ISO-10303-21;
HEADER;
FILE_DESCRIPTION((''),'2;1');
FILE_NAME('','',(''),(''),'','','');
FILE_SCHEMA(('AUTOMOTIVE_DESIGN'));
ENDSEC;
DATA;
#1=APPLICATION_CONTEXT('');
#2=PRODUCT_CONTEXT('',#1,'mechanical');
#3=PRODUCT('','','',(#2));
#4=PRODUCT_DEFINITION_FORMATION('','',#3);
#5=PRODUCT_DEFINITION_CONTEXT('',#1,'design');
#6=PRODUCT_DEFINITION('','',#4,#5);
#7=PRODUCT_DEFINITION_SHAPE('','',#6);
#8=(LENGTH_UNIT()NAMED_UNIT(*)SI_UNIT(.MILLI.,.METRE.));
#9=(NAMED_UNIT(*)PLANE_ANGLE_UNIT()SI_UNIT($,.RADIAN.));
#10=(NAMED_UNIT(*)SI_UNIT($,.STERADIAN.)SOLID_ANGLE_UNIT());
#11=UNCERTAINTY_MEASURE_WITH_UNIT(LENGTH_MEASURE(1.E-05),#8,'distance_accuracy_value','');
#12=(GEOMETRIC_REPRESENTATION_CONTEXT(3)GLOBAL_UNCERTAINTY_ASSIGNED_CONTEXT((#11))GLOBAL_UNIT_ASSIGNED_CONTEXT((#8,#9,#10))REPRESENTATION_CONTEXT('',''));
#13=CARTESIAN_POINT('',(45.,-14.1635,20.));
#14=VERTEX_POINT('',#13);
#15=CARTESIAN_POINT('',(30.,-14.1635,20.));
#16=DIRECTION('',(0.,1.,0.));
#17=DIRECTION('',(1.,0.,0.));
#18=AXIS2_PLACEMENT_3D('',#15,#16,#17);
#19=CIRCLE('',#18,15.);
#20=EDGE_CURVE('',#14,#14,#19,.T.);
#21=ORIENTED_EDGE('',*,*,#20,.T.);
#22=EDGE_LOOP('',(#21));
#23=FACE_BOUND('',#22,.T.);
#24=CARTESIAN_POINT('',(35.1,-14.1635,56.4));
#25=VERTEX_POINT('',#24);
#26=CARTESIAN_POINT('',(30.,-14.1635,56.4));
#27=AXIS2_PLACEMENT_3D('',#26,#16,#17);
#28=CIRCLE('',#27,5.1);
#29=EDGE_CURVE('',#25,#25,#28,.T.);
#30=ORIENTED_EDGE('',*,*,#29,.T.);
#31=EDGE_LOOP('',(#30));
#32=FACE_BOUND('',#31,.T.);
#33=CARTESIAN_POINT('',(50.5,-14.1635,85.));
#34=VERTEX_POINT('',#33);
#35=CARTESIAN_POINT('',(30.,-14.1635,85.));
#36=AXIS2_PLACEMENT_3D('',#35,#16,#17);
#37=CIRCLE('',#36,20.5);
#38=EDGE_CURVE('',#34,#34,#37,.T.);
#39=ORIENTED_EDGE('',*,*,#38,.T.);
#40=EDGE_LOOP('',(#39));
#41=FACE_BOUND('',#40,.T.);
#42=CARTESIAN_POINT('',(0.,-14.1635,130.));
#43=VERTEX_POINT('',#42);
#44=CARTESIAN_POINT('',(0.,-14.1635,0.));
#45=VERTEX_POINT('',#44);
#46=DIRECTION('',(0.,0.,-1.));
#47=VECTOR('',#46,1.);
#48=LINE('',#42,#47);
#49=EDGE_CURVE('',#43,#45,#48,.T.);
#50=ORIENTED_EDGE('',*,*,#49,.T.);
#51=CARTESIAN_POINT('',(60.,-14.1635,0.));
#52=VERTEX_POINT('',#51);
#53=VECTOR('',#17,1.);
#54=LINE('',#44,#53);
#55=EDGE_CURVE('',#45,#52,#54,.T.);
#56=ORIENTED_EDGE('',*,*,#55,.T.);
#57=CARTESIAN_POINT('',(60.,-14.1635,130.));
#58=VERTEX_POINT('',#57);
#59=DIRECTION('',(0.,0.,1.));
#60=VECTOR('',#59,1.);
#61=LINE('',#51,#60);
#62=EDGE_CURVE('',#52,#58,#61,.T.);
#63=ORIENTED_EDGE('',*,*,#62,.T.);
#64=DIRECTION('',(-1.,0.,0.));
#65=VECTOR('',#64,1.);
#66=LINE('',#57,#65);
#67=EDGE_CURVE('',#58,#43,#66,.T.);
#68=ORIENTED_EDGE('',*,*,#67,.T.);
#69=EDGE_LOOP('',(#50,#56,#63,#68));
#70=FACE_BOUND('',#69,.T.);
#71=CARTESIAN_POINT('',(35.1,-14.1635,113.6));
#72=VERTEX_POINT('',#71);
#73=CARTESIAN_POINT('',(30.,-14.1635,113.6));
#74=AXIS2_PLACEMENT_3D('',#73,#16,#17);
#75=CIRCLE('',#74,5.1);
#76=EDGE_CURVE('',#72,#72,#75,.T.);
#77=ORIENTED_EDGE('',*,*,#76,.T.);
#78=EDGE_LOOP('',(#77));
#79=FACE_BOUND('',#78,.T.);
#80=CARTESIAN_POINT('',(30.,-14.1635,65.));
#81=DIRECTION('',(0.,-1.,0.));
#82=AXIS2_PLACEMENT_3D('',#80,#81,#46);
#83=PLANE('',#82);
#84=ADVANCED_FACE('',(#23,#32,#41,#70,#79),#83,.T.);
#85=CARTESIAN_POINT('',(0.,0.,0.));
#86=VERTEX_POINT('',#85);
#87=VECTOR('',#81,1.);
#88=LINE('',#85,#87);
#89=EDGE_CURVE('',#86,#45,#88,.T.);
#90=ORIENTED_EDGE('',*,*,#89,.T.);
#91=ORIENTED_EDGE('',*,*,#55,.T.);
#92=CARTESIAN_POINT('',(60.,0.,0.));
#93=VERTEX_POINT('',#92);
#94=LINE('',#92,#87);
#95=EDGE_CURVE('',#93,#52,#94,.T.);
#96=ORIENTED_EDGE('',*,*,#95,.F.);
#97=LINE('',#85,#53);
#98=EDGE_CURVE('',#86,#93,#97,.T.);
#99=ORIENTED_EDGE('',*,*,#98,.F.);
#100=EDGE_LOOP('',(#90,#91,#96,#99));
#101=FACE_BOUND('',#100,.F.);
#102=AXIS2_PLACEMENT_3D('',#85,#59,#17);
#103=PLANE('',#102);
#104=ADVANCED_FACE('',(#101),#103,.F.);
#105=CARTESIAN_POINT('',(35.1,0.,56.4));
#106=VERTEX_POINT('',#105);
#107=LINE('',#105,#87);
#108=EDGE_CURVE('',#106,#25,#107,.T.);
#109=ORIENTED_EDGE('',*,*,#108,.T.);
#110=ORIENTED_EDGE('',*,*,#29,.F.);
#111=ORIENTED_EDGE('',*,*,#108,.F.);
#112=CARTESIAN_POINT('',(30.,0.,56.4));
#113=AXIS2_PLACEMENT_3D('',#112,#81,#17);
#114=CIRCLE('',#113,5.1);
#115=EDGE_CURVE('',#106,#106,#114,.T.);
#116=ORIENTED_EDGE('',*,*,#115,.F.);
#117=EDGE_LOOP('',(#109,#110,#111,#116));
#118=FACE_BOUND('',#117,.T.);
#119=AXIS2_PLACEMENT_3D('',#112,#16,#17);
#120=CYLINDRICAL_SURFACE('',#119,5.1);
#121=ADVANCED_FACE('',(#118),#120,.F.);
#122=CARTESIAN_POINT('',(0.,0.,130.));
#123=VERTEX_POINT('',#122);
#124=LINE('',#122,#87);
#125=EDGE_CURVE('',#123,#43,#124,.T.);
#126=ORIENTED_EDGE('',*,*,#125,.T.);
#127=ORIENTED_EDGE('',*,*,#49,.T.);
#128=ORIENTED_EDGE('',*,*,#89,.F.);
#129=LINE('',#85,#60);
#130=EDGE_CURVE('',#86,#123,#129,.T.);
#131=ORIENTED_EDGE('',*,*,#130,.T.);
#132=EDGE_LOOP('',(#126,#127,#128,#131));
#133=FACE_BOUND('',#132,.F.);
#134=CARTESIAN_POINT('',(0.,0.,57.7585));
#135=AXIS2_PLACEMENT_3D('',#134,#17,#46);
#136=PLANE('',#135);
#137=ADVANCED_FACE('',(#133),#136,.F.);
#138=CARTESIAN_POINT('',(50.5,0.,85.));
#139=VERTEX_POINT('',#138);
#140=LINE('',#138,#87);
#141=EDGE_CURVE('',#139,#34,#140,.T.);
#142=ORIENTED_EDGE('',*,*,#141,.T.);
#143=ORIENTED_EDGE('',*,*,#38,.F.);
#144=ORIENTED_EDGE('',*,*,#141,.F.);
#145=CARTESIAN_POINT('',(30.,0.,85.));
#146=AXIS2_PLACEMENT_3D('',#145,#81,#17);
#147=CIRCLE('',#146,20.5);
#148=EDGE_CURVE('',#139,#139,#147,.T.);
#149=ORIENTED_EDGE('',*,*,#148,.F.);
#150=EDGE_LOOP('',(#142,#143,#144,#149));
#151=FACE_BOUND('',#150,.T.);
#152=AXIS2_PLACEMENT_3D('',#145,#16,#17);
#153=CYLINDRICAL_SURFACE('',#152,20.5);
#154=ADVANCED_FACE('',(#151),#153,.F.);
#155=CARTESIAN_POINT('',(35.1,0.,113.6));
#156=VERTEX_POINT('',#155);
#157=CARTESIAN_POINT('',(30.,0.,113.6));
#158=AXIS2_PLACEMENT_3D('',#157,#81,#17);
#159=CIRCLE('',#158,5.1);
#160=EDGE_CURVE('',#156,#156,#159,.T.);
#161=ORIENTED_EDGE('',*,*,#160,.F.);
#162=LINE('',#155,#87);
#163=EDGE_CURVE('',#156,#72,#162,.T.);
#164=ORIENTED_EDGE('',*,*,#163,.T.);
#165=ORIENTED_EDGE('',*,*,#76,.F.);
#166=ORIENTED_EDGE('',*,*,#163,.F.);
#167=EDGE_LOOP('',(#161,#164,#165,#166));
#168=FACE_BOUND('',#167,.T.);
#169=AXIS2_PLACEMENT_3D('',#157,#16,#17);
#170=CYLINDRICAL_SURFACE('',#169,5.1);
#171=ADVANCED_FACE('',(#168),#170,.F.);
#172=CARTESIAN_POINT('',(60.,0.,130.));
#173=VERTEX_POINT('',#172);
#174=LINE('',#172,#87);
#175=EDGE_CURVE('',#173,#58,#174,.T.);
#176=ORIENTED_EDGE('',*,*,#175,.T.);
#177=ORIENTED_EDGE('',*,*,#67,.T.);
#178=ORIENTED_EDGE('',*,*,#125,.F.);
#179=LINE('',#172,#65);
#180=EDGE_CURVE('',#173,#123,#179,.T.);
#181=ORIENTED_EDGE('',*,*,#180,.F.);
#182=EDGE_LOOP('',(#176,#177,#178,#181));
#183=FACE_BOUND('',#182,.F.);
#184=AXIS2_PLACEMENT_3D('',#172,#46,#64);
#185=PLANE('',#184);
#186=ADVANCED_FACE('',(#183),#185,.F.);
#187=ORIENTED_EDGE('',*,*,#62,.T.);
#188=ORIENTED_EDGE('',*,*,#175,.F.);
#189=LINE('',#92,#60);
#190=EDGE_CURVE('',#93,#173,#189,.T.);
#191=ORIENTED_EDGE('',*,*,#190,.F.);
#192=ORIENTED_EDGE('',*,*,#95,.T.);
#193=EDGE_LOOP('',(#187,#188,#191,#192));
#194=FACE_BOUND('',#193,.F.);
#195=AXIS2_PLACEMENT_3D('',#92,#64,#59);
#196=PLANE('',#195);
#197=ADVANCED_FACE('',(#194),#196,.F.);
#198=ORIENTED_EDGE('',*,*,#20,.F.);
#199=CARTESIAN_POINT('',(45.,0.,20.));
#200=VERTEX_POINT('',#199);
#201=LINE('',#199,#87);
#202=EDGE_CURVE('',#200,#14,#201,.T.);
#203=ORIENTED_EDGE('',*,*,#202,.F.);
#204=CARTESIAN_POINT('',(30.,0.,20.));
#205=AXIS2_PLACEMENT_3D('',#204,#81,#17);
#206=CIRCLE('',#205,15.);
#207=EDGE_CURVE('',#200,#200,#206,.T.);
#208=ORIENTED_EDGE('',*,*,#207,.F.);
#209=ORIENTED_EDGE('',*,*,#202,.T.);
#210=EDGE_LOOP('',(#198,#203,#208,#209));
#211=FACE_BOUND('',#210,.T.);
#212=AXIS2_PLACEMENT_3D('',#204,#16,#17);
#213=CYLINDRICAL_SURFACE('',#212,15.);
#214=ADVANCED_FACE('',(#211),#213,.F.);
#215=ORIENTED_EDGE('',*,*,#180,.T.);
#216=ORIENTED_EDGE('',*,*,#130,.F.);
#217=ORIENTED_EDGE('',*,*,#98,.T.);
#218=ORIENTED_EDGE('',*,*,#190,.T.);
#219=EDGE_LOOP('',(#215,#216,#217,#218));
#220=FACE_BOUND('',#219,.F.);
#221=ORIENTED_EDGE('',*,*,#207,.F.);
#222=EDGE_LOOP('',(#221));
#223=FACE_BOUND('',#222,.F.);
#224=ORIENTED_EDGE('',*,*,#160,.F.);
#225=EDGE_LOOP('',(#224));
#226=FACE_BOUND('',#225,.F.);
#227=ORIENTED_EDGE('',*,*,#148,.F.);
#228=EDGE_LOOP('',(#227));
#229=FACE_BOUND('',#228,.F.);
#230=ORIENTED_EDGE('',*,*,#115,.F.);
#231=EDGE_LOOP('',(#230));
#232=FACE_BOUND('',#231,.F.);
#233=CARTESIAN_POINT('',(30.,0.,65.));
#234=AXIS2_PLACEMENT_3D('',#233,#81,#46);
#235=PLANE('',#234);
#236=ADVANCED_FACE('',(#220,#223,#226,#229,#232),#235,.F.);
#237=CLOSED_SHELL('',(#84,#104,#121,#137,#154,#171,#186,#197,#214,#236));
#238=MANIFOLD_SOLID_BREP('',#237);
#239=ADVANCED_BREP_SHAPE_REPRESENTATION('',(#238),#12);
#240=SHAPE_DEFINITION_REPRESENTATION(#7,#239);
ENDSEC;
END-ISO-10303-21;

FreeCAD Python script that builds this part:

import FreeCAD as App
import Part
import Sketcher

V = App.Vector
Q = App.Units.Quantity


def add_polygon(sketch, points):
    """Adds a closed chain of lines whose ends are joined by coincident constraints."""
    first, n = sketch.GeometryCount, len(points)
    for a, b in zip(points, points[1:] + points[:1]):
        sketch.addGeometry(Part.LineSegment(App.Vector(*a, 0), App.Vector(*b, 0)), False)
    for i in range(n):
        sketch.addConstraint(Sketcher.Constraint("Coincident", first + i, 2, first + (i + 1) % n, 1))

doc = App.newDocument("Part")
body = doc.addObject("PartDesign::Body", "Body")

# Sketch on XZ plane
sketch1 = body.newObject("Sketcher::SketchObject", "Sketch")
sketch1.AttachmentSupport = (doc.getObject("XZ_Plane"), [""])
sketch1.MapMode = "FlatFace"
add_polygon(sketch1, [(0, 0), (60, 0), (60, 130), (0, 130)])  # lines 0-3
sketch1.addConstraint([
    Sketcher.Constraint("Horizontal", 0),
    Sketcher.Constraint("Vertical", 1),
    Sketcher.Constraint("Horizontal", 2),
    Sketcher.Constraint("Vertical", 3),
    Sketcher.Constraint("Coincident", 3, 2, -1, 1),
    Sketcher.Constraint("DistanceX", 0, 1, 0, 2, Q("60 mm")),
    Sketcher.Constraint("DistanceY", 1, 1, 1, 2, Q("130 mm")),
])
pad1 = body.newObject("PartDesign::Pad", "Pad")
pad1.Profile = sketch1
pad1.Length = 14.1635

# Sketch on XZ plane
sketch2 = body.newObject("Sketcher::SketchObject", "Sketch001")
sketch2.AttachmentSupport = (doc.getObject("XZ_Plane"), [""])
sketch2.MapMode = "FlatFace"
sketch2.addGeometry([
    Part.Circle(V(30, 113.6, 0), V(0, 0, 1), 5.1),
    Part.Circle(V(30, 85, 0), V(0, 0, 1), 20.5),
    Part.Circle(V(30, 56.4, 0), V(0, 0, 1), 5.1),
    Part.Circle(V(30, 20, 0), V(0, 0, 1), 15),
], False)
sketch2.addConstraint([
    Sketcher.Constraint("Equal", 0, 2),
    Sketcher.Constraint("Vertical", 0, 3, 1, 3),
    Sketcher.Constraint("Vertical", 1, 3, 2, 3),
    Sketcher.Constraint("Vertical", 2, 3, 3, 3),
    Sketcher.Constraint("Diameter", 1, Q("41 mm")),
    Sketcher.Constraint("Diameter", 3, Q("30 mm")),
    Sketcher.Constraint("Diameter", 0, Q("10.2 mm")),
    Sketcher.Constraint("DistanceX", -1, 1, 0, 3, Q("30 mm")),
    Sketcher.Constraint("DistanceY", -1, 1, 1, 3, Q("85 mm")),
    Sketcher.Constraint("DistanceY", -1, 1, 3, 3, Q("20 mm")),
    Sketcher.Constraint("DistanceY", -1, 1, 0, 3, Q("113.6 mm")),
    Sketcher.Constraint("DistanceY", -1, 1, 2, 3, Q("56.4 mm")),
])
pocket1 = body.newObject("PartDesign::Pocket", "Pocket")
pocket1.Profile = sketch2
pocket1.Length = 65.8643
pocket1.Reversed = True

doc.recompute()
